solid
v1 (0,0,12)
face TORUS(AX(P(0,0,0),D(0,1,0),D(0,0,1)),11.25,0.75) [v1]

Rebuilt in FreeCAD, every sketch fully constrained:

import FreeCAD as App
import Part
import Sketcher
Q = App.Units.Quantity

doc = App.newDocument("Part")
params = doc.addObject("Spreadsheet::Sheet", "Params")
for row, (alias, value) in enumerate([
    ("sketch1_diameter", "1.5 mm"),
    ("revolution_angle", "360 deg"),
], start=1):
    params.set(f"A{row}", alias)
    params.set(f"B{row}", "=" + value)
    params.setAlias(f"B{row}", alias)

body = doc.addObject("PartDesign::Body", "Body")

# Sketch on XY plane
sketch1 = body.newObject("Sketcher::SketchObject", "Sketch")
sketch1.AttachmentSupport = (doc.getObject("XY_Plane"), [""])
sketch1.MapMode = "FlatFace"
sketch1.addGeometry(Part.Circle(App.Vector(11.2, 0, 0), App.Vector(0, 0, 1), 0.8), False)
sketch1.addConstraint([
    Sketcher.Constraint("PointOnObject", 0, 3, -1),
    Sketcher.Constraint("Diameter", 0, Q("1.5 mm")),
    Sketcher.Constraint("DistanceX", -1, 1, 0, 3, Q("11.25 mm")),
])
sketch1.setExpression("Constraints[1]", "Params.sketch1_diameter")
revolution = body.newObject("PartDesign::Revolution", "Revolution")
revolution.Profile = sketch1
revolution.ReferenceAxis = (sketch1, ["V_Axis"])
revolution.setExpression("Angle", "Params.revolution_angle")

doc.recompute()
